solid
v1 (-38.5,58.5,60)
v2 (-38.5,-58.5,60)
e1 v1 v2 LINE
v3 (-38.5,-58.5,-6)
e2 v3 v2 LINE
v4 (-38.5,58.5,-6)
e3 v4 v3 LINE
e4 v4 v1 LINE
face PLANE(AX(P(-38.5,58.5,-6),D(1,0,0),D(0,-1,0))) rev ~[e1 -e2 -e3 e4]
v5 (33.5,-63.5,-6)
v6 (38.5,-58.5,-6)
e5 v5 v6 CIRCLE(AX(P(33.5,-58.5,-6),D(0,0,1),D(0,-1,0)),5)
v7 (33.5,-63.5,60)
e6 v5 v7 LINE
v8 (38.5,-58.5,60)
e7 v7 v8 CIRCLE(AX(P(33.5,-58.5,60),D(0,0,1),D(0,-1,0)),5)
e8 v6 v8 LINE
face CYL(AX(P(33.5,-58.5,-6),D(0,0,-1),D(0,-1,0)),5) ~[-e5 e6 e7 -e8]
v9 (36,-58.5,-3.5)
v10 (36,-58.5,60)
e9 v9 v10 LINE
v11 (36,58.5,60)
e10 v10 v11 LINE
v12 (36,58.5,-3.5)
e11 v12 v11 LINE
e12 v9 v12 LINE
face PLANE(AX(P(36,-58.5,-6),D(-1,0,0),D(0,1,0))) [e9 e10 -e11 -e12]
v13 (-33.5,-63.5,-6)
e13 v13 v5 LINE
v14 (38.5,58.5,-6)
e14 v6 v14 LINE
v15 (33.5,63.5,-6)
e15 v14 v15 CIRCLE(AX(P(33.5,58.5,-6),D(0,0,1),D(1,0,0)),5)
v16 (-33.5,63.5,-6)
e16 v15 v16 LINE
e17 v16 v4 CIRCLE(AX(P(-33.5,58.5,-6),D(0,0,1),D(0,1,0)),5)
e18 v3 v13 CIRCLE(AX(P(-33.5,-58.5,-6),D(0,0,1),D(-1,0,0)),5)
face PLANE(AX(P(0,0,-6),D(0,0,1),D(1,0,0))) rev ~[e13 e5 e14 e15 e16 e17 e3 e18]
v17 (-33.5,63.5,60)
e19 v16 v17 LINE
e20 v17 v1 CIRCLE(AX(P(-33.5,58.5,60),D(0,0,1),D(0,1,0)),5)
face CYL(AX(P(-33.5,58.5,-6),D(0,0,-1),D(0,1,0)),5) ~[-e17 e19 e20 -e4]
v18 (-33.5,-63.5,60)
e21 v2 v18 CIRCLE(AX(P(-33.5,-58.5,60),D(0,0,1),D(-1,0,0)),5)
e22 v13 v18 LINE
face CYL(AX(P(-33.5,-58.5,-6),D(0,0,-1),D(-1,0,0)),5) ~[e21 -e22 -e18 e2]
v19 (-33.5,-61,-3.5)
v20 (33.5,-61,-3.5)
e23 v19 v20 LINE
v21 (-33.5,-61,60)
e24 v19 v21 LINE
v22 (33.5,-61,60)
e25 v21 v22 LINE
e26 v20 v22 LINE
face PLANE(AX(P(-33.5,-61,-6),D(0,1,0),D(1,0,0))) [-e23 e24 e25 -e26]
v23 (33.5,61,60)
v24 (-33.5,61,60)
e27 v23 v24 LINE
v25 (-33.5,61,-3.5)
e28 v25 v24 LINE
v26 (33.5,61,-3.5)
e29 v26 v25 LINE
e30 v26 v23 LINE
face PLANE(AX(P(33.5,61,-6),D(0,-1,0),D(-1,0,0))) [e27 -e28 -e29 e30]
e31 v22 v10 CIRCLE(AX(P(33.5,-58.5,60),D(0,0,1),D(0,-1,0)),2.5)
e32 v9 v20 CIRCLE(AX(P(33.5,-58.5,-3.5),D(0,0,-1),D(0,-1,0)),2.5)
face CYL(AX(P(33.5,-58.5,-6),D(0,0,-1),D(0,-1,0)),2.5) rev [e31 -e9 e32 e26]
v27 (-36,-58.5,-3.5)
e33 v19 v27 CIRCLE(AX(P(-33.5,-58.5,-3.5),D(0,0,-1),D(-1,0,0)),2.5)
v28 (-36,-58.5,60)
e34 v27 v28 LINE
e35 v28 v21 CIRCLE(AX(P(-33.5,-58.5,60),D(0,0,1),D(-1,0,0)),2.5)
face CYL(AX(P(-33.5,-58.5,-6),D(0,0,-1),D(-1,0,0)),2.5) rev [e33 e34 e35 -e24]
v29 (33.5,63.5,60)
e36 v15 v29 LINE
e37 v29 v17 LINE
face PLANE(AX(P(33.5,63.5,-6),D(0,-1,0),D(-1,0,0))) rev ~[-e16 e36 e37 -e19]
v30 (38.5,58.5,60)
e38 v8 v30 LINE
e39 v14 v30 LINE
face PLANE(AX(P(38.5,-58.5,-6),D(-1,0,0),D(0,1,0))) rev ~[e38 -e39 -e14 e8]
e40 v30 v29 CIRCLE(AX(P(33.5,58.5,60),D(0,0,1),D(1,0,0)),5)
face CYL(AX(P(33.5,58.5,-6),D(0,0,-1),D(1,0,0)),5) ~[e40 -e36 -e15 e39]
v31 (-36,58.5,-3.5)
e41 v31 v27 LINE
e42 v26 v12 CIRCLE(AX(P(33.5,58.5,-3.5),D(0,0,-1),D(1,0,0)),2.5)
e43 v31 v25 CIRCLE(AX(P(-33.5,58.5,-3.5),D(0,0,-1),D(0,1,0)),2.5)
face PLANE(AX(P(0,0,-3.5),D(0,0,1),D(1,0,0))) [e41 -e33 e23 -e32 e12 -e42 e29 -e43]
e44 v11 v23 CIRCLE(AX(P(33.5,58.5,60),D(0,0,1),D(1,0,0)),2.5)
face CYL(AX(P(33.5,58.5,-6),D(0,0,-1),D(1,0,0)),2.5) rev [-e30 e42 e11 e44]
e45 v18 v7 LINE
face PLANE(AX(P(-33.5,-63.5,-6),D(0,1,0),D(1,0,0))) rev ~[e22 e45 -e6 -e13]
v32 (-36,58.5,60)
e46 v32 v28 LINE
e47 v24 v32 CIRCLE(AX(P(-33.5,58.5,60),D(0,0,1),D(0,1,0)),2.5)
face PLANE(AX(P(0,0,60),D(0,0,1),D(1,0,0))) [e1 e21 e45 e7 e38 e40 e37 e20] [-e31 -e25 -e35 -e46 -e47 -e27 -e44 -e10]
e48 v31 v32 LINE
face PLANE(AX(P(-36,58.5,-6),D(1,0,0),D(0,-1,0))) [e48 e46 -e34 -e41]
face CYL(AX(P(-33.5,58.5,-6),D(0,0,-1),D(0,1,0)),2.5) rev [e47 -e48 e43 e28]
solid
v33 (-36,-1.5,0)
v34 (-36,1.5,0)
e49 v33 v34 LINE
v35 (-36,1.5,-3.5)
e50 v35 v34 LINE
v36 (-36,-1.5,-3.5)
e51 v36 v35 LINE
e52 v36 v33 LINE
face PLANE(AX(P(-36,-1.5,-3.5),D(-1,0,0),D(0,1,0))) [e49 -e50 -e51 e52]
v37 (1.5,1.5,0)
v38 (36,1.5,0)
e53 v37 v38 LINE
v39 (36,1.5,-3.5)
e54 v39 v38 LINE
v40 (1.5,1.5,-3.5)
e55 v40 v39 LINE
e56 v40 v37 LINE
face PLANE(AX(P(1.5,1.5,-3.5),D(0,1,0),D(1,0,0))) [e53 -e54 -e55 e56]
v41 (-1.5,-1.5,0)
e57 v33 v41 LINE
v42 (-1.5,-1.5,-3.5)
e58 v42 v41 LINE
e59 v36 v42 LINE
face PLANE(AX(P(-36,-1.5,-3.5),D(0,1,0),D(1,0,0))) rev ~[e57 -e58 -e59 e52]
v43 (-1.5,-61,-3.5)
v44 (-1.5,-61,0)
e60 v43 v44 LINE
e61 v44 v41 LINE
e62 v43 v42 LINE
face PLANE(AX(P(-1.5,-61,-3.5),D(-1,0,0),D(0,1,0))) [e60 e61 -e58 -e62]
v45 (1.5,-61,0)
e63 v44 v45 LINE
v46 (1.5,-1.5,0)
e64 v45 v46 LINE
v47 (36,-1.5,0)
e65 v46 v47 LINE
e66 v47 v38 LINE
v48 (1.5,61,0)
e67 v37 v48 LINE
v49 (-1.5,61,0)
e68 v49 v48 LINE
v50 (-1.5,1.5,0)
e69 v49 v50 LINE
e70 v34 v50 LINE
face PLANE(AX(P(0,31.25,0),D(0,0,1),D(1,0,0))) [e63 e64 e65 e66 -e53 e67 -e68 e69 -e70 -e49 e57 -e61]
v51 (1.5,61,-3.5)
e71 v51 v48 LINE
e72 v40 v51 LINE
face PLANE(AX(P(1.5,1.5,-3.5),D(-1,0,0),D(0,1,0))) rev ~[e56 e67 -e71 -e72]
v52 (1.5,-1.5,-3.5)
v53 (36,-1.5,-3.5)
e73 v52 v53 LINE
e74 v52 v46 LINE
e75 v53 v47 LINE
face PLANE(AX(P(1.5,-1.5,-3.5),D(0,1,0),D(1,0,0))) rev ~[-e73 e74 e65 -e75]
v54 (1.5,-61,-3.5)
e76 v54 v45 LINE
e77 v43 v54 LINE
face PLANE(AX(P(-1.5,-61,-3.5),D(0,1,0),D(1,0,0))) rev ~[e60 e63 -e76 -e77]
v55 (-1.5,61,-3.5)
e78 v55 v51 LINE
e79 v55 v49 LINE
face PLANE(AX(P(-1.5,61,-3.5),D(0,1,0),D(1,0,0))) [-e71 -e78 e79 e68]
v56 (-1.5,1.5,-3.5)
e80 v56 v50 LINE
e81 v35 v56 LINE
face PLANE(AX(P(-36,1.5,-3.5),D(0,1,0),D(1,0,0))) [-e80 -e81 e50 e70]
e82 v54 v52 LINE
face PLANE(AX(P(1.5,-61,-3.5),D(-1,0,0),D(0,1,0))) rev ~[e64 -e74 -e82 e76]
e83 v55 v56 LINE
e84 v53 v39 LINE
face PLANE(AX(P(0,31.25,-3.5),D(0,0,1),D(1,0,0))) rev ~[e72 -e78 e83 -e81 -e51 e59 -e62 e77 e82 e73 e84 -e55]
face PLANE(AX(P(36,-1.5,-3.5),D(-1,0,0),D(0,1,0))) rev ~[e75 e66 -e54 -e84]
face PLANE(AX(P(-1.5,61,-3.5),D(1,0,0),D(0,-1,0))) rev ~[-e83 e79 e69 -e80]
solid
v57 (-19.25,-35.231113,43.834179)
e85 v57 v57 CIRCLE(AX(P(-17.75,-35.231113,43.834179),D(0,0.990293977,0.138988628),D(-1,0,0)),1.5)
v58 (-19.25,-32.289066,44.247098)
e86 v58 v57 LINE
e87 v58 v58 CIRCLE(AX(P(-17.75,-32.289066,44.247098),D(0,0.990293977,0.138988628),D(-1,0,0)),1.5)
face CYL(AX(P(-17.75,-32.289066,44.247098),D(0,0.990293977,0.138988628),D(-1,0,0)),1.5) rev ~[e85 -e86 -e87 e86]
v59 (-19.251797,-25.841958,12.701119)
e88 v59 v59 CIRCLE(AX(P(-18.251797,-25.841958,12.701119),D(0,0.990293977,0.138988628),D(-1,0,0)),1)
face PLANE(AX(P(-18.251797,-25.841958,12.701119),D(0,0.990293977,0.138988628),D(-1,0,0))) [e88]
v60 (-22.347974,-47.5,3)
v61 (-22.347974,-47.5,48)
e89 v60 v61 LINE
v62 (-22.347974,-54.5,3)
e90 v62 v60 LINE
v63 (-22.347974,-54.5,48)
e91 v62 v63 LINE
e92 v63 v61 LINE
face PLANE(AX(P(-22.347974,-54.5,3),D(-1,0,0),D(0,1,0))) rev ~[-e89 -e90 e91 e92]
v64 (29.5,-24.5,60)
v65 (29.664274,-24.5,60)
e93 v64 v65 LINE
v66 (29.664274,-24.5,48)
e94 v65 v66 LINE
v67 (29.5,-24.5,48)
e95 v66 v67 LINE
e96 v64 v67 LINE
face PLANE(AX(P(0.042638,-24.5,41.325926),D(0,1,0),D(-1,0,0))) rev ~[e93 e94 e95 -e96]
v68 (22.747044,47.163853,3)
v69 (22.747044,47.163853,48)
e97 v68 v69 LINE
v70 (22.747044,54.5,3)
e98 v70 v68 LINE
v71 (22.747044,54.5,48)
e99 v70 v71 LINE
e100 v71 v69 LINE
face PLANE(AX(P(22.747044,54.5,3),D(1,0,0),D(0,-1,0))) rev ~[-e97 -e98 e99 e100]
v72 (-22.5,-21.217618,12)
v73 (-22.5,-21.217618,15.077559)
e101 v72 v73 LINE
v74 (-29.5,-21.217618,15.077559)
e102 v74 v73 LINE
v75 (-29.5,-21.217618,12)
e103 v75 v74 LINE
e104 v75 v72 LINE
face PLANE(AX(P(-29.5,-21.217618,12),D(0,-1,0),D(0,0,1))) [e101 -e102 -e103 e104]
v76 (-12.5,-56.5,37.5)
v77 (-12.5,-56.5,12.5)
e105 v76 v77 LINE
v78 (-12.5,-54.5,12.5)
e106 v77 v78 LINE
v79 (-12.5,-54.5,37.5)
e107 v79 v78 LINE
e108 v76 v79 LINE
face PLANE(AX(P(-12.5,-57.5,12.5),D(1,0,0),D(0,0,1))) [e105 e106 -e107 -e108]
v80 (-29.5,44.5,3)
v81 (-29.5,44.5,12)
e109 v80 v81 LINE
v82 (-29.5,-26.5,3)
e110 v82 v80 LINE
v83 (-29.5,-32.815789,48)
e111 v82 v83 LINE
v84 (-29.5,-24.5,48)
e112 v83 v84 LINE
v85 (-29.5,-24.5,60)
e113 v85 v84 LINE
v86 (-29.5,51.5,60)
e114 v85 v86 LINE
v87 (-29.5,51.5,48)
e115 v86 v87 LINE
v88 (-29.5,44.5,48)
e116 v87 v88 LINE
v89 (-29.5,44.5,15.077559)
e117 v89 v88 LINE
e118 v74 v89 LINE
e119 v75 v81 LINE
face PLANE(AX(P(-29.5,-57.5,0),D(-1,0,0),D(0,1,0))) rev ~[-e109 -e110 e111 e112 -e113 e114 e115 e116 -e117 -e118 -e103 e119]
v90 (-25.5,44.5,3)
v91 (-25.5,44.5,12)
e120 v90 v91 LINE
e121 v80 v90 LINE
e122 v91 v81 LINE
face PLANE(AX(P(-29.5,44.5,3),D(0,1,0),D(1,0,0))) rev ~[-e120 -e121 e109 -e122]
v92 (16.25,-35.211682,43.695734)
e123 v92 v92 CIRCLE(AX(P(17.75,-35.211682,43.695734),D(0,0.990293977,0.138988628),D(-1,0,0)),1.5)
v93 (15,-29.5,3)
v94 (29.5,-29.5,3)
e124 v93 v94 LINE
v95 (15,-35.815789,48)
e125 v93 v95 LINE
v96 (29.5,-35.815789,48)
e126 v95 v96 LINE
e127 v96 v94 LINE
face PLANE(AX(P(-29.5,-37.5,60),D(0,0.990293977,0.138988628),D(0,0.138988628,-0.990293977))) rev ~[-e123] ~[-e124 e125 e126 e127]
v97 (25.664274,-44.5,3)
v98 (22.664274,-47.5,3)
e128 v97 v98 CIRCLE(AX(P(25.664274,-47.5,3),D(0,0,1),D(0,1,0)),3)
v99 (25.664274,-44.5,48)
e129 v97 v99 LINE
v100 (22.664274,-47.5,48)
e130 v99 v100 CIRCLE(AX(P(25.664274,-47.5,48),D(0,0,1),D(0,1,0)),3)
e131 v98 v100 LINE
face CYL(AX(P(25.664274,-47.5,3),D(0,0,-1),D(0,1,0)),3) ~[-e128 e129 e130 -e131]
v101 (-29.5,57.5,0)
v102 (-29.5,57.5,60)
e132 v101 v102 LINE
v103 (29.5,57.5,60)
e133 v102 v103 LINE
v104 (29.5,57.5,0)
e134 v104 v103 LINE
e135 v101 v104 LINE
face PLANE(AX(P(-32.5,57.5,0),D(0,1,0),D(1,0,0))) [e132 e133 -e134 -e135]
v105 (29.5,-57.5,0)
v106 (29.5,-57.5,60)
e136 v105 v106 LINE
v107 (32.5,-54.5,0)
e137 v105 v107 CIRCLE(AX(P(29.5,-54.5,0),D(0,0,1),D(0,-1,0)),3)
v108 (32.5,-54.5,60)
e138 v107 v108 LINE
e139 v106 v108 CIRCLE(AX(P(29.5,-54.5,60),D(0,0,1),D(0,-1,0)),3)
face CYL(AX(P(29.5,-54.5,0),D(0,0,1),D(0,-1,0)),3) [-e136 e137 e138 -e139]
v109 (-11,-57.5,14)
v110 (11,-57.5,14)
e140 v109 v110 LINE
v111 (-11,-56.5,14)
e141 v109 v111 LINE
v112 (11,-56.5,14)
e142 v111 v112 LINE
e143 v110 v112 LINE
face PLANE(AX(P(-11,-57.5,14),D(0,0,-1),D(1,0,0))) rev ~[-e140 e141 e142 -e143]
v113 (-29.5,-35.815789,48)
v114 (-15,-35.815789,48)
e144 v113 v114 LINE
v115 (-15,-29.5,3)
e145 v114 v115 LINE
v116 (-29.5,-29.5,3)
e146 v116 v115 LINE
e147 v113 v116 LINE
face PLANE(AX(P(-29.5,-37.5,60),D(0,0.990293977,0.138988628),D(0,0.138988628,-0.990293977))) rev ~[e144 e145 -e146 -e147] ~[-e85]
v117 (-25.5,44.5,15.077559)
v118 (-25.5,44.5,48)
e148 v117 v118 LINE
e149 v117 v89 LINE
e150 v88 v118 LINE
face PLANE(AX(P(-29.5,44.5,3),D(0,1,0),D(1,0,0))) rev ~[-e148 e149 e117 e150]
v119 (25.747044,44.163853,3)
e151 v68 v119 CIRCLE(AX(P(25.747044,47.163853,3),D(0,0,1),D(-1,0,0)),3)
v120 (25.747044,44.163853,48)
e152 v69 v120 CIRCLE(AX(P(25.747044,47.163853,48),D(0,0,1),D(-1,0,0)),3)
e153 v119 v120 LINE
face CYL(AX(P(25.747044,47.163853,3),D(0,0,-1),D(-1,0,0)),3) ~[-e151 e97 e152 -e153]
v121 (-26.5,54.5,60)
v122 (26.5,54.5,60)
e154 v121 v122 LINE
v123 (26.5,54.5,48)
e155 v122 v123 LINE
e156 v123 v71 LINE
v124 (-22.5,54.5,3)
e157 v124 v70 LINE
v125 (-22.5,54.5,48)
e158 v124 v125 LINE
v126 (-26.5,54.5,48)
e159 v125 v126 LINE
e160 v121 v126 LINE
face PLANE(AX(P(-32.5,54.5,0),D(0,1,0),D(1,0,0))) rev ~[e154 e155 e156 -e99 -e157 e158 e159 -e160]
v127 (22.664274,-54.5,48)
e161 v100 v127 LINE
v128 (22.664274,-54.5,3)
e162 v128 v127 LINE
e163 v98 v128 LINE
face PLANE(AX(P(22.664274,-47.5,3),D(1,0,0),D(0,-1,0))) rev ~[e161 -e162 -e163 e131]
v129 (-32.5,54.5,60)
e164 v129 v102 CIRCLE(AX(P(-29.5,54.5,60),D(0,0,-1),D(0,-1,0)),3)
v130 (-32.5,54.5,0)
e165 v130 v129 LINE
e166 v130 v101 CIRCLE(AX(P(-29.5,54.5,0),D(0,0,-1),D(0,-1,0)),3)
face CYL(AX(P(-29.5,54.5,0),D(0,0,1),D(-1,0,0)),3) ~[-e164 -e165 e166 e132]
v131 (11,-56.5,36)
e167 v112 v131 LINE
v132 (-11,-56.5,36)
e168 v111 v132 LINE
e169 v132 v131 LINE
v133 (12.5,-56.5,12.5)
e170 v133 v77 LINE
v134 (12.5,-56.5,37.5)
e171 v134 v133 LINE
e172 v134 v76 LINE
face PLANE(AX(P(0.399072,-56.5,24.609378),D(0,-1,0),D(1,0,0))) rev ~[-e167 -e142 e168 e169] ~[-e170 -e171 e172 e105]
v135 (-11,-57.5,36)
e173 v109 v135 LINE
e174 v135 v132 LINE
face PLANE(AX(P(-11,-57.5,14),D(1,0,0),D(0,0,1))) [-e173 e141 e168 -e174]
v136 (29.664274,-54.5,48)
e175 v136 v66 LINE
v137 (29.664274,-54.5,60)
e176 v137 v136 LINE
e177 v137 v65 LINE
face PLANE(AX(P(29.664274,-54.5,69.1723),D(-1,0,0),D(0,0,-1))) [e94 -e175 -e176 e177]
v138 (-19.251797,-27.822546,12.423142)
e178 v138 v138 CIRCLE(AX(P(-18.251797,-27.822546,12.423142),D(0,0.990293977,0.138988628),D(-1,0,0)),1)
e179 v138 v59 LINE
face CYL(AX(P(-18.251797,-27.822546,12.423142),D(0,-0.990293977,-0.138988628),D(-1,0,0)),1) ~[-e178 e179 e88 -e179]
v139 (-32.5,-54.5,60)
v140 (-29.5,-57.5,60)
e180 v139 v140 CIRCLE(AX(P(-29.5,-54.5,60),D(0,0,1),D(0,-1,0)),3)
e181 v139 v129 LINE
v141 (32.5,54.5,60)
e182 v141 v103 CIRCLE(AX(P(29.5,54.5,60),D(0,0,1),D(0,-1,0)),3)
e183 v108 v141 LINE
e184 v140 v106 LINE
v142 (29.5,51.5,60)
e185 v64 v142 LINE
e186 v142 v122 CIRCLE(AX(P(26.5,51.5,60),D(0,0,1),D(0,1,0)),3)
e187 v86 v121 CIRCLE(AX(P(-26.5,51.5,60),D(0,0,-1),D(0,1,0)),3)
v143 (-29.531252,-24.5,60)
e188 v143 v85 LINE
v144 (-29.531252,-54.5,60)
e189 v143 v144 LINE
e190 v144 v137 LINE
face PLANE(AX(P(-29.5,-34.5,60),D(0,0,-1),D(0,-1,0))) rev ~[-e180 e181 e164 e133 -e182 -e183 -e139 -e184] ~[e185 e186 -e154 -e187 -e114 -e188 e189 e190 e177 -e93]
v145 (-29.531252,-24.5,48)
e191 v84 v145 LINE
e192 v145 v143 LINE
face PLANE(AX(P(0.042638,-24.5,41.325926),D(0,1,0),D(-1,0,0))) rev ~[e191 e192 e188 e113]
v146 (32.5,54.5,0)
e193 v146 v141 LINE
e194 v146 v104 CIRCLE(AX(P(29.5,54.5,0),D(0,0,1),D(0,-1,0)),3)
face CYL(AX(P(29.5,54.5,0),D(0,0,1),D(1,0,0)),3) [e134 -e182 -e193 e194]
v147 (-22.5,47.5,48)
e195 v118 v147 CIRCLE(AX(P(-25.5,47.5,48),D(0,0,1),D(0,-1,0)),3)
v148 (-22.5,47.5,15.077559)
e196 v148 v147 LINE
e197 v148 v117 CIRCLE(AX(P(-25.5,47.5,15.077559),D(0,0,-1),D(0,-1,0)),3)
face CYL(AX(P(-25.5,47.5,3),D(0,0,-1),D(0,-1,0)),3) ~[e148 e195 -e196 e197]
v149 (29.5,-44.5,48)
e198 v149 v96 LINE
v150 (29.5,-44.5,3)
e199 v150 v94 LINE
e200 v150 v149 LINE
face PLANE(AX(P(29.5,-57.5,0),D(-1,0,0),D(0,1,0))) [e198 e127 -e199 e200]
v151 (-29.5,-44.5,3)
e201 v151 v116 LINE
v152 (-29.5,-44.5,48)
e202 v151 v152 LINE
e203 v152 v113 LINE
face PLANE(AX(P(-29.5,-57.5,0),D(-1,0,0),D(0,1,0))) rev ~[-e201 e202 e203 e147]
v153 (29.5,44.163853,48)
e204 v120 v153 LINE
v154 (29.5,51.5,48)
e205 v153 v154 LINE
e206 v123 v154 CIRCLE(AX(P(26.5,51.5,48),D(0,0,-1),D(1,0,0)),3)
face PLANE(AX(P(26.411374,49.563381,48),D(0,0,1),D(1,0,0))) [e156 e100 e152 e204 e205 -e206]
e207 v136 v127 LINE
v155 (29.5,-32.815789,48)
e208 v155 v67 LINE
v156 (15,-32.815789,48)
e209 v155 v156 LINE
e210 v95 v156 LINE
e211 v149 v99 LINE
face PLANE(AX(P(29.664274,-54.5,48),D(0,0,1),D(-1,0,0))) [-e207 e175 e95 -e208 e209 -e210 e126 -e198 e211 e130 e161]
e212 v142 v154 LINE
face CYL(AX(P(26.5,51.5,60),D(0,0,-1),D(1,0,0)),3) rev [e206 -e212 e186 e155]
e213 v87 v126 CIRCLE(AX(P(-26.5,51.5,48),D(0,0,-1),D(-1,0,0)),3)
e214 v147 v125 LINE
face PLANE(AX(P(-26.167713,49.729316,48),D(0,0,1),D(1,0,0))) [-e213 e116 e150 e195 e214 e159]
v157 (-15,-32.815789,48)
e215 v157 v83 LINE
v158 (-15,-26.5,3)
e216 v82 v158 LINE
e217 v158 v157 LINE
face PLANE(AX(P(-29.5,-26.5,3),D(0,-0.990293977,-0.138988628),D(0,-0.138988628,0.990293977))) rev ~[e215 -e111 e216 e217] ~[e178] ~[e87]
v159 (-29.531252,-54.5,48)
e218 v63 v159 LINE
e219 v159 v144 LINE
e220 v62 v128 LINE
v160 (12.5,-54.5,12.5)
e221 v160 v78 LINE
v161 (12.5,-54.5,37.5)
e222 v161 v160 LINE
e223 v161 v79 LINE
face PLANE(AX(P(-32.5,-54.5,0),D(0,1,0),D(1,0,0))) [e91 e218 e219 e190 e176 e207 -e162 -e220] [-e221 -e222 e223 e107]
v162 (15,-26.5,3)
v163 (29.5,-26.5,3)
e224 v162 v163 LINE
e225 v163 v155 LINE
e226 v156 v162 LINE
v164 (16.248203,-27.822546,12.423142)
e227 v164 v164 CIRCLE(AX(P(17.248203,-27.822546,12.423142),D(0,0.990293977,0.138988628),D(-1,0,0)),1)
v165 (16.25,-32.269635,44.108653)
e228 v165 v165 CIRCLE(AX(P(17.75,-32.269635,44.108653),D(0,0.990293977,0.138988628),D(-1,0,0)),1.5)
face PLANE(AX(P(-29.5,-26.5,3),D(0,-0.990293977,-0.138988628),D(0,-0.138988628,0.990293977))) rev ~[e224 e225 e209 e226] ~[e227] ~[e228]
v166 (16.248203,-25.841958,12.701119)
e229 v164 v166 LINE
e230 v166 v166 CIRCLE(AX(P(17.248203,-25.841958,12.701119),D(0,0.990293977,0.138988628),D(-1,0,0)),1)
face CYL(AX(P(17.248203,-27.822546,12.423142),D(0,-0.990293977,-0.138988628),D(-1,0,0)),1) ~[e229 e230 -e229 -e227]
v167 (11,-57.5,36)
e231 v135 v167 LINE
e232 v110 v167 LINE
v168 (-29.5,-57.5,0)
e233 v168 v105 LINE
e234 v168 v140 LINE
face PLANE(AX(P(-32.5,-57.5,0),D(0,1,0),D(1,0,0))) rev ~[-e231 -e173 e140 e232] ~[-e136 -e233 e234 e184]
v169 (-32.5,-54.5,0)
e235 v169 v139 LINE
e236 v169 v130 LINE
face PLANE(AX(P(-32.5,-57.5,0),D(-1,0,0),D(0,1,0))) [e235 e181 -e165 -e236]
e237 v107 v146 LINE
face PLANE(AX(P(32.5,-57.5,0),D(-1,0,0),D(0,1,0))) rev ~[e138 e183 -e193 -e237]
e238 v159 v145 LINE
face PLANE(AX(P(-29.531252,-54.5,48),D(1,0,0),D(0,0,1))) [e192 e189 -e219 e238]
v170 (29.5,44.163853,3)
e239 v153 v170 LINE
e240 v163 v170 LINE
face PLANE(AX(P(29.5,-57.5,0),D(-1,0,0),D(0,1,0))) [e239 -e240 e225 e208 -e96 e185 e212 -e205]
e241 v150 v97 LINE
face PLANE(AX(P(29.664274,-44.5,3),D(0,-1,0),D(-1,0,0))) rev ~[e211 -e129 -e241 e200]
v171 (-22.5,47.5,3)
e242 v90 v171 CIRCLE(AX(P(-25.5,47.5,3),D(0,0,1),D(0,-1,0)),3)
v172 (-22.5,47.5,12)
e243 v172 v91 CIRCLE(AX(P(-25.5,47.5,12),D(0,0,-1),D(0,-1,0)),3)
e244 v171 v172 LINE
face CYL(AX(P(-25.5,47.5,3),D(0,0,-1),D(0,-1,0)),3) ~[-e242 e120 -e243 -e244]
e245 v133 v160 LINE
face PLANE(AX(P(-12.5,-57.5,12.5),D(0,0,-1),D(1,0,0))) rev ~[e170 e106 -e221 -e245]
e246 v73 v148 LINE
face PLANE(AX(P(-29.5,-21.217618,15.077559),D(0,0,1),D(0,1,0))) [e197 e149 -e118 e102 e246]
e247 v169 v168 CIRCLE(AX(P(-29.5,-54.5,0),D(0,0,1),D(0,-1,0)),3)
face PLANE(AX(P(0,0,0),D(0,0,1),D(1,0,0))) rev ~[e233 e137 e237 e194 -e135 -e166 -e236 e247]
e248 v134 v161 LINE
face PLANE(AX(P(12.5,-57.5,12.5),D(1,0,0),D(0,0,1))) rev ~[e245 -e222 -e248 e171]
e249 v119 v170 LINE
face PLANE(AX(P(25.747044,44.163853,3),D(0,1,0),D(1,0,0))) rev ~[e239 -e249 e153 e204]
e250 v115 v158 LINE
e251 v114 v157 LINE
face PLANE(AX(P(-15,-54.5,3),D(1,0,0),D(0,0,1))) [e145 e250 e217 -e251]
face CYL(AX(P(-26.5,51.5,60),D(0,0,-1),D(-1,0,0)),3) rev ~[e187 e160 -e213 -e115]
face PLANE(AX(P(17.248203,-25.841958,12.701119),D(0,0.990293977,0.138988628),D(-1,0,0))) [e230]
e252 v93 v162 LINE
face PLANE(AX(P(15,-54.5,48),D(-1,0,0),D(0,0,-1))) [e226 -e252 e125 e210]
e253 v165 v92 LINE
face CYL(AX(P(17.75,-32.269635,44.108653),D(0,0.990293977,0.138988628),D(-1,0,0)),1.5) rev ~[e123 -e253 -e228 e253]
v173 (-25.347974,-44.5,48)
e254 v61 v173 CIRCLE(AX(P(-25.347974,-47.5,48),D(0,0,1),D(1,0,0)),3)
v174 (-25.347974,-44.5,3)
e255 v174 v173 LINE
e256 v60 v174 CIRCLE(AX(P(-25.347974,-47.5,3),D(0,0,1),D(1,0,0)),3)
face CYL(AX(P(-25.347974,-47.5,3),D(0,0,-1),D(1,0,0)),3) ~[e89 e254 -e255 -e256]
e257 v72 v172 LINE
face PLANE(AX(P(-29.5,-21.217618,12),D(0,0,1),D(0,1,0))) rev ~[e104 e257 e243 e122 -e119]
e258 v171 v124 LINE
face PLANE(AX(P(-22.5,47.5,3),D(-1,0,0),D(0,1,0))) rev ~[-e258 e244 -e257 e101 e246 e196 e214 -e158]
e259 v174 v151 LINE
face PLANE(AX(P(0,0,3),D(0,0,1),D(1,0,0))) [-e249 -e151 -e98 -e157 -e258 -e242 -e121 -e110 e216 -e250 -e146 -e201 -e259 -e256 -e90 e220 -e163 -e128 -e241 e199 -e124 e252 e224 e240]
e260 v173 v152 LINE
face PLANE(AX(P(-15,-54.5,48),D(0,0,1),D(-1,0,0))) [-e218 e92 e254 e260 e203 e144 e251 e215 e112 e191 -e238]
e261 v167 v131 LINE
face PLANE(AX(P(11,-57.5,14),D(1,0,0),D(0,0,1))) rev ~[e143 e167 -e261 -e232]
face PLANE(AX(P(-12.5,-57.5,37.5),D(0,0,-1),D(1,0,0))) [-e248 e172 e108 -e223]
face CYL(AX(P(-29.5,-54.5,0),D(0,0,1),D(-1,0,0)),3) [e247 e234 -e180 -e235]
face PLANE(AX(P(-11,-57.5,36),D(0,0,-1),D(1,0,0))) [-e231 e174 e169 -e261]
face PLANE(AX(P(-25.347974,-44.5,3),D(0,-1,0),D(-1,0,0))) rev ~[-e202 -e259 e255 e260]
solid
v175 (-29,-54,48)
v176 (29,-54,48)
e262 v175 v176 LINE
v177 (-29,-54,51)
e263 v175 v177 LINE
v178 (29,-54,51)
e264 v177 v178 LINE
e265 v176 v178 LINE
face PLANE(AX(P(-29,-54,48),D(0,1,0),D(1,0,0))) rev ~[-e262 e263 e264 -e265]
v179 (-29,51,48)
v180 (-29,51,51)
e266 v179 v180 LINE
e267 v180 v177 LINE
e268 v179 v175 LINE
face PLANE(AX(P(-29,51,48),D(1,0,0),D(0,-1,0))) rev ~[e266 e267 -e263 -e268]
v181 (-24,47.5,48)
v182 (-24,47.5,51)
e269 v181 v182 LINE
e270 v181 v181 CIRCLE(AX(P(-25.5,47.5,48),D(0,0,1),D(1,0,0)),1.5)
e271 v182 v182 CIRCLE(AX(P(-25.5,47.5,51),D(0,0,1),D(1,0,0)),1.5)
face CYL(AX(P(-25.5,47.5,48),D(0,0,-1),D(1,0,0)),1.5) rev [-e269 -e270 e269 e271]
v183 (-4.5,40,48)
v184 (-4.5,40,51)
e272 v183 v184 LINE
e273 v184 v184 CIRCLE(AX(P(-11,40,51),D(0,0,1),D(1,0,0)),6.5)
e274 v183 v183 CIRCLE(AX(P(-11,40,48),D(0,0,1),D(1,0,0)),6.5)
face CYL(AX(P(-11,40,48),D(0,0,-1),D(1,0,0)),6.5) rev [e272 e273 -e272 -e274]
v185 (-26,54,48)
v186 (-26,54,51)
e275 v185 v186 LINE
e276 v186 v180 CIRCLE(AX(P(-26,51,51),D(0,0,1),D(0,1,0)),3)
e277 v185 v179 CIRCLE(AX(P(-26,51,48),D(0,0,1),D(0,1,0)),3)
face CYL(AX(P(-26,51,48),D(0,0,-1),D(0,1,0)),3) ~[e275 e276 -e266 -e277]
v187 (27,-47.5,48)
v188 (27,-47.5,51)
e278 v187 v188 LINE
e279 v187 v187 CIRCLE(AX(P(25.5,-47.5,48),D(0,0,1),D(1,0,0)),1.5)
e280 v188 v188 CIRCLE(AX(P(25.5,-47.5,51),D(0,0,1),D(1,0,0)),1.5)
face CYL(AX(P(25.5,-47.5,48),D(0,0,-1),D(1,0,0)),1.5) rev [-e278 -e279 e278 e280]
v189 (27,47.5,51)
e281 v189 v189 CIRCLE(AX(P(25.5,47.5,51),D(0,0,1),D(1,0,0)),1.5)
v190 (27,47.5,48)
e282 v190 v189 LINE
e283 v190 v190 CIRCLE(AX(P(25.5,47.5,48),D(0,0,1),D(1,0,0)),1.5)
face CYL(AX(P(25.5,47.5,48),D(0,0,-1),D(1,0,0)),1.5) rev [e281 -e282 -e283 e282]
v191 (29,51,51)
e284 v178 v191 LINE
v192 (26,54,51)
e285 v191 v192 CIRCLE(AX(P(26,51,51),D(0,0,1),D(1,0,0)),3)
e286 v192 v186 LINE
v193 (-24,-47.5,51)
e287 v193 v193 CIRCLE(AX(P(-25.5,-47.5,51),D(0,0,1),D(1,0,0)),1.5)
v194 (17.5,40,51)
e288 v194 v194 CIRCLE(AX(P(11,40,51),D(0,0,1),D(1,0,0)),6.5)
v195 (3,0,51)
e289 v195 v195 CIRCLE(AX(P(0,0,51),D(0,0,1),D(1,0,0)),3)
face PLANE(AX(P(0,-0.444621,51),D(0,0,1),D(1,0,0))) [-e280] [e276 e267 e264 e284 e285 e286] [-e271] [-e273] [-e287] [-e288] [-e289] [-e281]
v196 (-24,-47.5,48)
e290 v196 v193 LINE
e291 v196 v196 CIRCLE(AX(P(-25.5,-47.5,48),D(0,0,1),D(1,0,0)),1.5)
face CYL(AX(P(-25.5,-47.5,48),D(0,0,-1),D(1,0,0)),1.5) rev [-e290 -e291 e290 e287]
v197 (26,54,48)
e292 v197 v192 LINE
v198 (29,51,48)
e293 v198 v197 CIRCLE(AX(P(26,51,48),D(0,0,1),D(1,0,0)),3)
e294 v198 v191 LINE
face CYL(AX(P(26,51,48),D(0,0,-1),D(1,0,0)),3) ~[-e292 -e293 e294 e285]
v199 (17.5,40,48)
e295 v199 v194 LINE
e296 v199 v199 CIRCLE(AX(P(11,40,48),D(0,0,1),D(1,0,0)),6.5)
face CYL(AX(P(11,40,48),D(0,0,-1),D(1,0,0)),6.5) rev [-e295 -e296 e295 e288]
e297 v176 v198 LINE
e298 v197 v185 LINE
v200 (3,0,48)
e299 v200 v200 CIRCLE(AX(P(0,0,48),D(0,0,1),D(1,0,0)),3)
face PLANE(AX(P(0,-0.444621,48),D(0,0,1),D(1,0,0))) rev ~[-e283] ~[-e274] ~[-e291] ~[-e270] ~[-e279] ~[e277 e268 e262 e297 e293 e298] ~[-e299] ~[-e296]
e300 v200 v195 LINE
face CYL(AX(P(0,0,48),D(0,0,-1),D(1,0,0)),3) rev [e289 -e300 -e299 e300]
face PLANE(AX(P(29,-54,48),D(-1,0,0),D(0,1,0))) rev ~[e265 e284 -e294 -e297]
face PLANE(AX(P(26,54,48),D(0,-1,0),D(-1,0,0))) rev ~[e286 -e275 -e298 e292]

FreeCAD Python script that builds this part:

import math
import FreeCAD as App
import Part
import Sketcher
Q = App.Units.Quantity


def edges_at(feature, points):
    """Names of the edges that pass closest to the given points."""
    edges = feature.Shape.Edges
    near = lambda p: min(range(len(edges)), key=lambda i: edges[i].distToShape(Part.Vertex(*p))[0])
    return sorted({f"Edge{near(p) + 1}" for p in points})


def faces_at(feature, points):
    """Names of the faces that lie closest to the given points."""
    faces = feature.Shape.Faces
    near = lambda p: min(range(len(faces)), key=lambda i: faces[i].distToShape(Part.Vertex(*p))[0])
    return sorted({f"Face{near(p) + 1}" for p in points})


def add_polygon(sketch, points):
    """Adds a closed chain of lines whose ends are joined by coincident constraints."""
    first, n = sketch.GeometryCount, len(points)
    for a, b in zip(points, points[1:] + points[:1]):
        sketch.addGeometry(Part.LineSegment(App.Vector(*a, 0), App.Vector(*b, 0)), False)
    for i in range(n):
        sketch.addConstraint(Sketcher.Constraint("Coincident", first + i, 2, first + (i + 1) % n, 1))

doc = App.newDocument("Part")
body = doc.addObject("PartDesign::Body", "Body")

sketch1 = body.newObject("Sketcher::SketchObject", "Sketch")
sketch1.AttachmentSupport = (doc.getObject("XY_Plane"), [""])
sketch1.MapMode = "FlatFace"
sketch1.AttachmentOffset = App.Placement(App.Vector(0, 0, -6), App.Rotation())
sketch1.addGeometry([
    Part.LineSegment(App.Vector(34, 64, 0), App.Vector(-34, 64, 0)),
    Part.ArcOfCircle(Part.Circle(App.Vector(-34, 58, 0), App.Vector(0, 0, 1), 5), math.radians(90), math.radians(180)),
    Part.LineSegment(App.Vector(-38, 58, 0), App.Vector(-38, -58, 0)),
    Part.ArcOfCircle(Part.Circle(App.Vector(-34, -58, 0), App.Vector(0, 0, 1), 5), math.radians(180), math.radians(270)),
    Part.LineSegment(App.Vector(-34, -64, 0), App.Vector(34, -64, 0)),
    Part.ArcOfCircle(Part.Circle(App.Vector(34, -58, 0), App.Vector(0, 0, 1), 5), math.radians(-90), math.radians(0)),
    Part.LineSegment(App.Vector(38, -58, 0), App.Vector(38, 58, 0)),
    Part.ArcOfCircle(Part.Circle(App.Vector(34, 58, 0), App.Vector(0, 0, 1), 5), math.radians(0), math.radians(90)),
], False)
sketch1.addConstraint([
    Sketcher.Constraint("Tangent", 0, 2, 1, 1),
    Sketcher.Constraint("Tangent", 1, 2, 2, 1),
    Sketcher.Constraint("Tangent", 2, 2, 3, 1),
    Sketcher.Constraint("Tangent", 3, 2, 4, 1),
    Sketcher.Constraint("Tangent", 4, 2, 5, 1),
    Sketcher.Constraint("Tangent", 5, 2, 6, 1),
    Sketcher.Constraint("Tangent", 6, 2, 7, 1),
    Sketcher.Constraint("Tangent", 7, 2, 0, 1),
    Sketcher.Constraint("Horizontal", 0),
    Sketcher.Constraint("Vertical", 2),
    Sketcher.Constraint("Horizontal", 4),
    Sketcher.Constraint("Vertical", 6),
    Sketcher.Constraint("Equal", 1, 3),
    Sketcher.Constraint("Equal", 3, 5),
    Sketcher.Constraint("Equal", 5, 7),
    Sketcher.Constraint("Symmetric", 1, 3, 5, 3, -1, 1),
    Sketcher.Constraint("Radius", 1, Q("5 mm")),
    Sketcher.Constraint("DistanceX", 0, 2, 0, 1, Q("67 mm")),
    Sketcher.Constraint("DistanceY", 2, 2, 2, 1, Q("117 mm")),
])
pad1 = body.newObject("PartDesign::Pad", "Pad")
pad1.Profile = sketch1
pad1.Length = 66
doc.recompute()

thickness = body.newObject("PartDesign::Thickness", "Thickness")
thickness.Base = (pad1, faces_at(pad1, [(0, 0, 60)]))
thickness.Value = 2.5
thickness.Reversed = True
thickness.Join = "Arc"
body2 = doc.addObject("PartDesign::Body", "Body001")

sketch2 = body2.newObject("Sketcher::SketchObject", "Sketch001")
sketch2.AttachmentSupport = (doc.getObject("XY_Plane001"), [""])
sketch2.MapMode = "FlatFace"
add_polygon(sketch2, [(-32, 58), (-32, -58), (32, -58), (32, 58)])
sketch2.addConstraint([
    Sketcher.Constraint("Vertical", 0),
    Sketcher.Constraint("Horizontal", 1),
    Sketcher.Constraint("Vertical", 2),
    Sketcher.Constraint("Horizontal", 3),
    Sketcher.Constraint("Symmetric", 0, 2, 2, 2, -1, 1),
    Sketcher.Constraint("DistanceX", 1, 1, 1, 2, Q("65 mm")),
    Sketcher.Constraint("DistanceY", 0, 2, 0, 1, Q("115 mm")),
])
pad2 = body2.newObject("PartDesign::Pad", "Pad001")
pad2.Profile = sketch2
pad2.Length = 60
doc.recompute()

thickness2 = body2.newObject("PartDesign::Thickness", "Thickness001")
thickness2.Base = (pad2, faces_at(pad2, [(0, 0, 60)]))
thickness2.Value = 3
thickness2.Reversed = True
thickness2.Join = "Arc"
doc.recompute()

fillet = body2.newObject("PartDesign::Fillet", "Fillet")
fillet.Base = (thickness2, edges_at(thickness2, [
    (-29.5, 54.5, 31.5),
    (32.5, -57.5, 30),
    (-32.5, -57.5, 30),
    (32.5, 57.5, 30),
    (29.5, -54.5, 31.5),
    (-32.5, 57.5, 30),
    (29.5, 54.5, 31.5),
    (-29.5, -54.5, 31.5),
]))
fillet.Radius = 3

sketch3 = body2.newObject("Sketcher::SketchObject", "Sketch002")
sketch3.AttachmentSupport = (doc.getObject("YZ_Plane001"), [""])
sketch3.MapMode = "FlatFace"
sketch3.AttachmentOffset = App.Placement(App.Vector(0, 0, -29.5), App.Rotation())
add_polygon(sketch3, [(-37.5, 60), (-29.5, 3), (-26.5, 3), (-34.5, 60)])
sketch3.addConstraint([
    Sketcher.Constraint("Horizontal", 1),
    Sketcher.Constraint("Horizontal", 3),
    Sketcher.Constraint("Parallel", 0, 2),
    Sketcher.Constraint("DistanceX", 1, 1, 1, 2, Q("3 mm")),
    Sketcher.Constraint("DistanceY", -1, 1, 0, 2, Q("3 mm")),
    Sketcher.Constraint("DistanceY", -1, 1, 2, 2, Q("60 mm")),
    Sketcher.Constraint("DistanceX", 2, 2, 0, 2, Q("5 mm")),
    Sketcher.Constraint("DistanceX", 0, 2, -1, 1, Q("29.5 mm")),
])
pad3 = body2.newObject("PartDesign::Pad", "Pad002")
pad3.Profile = sketch3
pad3.Length = 60

sketch4 = body2.newObject("Sketcher::SketchObject", "Sketch003")
sketch4.AttachmentSupport = (doc.getObject("XZ_Plane001"), [""])
sketch4.MapMode = "FlatFace"
sketch4.AttachmentOffset = App.Placement(App.Vector(0, 0, 54.5), App.Rotation())
add_polygon(sketch4, [(15, 3), (-15, 3), (-15, 48), (-30, 48), (-30, 69), (30, 69), (30, 48), (15, 48)])
sketch4.addConstraint([
    Sketcher.Constraint("Horizontal", 0),
    Sketcher.Constraint("Vertical", 1),
    Sketcher.Constraint("Horizontal", 2),
    Sketcher.Constraint("Vertical", 3),
    Sketcher.Constraint("Horizontal", 4),
    Sketcher.Constraint("Vertical", 5),
    Sketcher.Constraint("Horizontal", 6),
    Sketcher.Constraint("Vertical", 7),
    Sketcher.Constraint("Symmetric", 1, 2, 6, 2, -2),
    Sketcher.Constraint("DistanceX", 0, 2, 0, 1, Q("30 mm")),
    Sketcher.Constraint("DistanceY", 1, 1, 1, 2, Q("45 mm")),
    Sketcher.Constraint("DistanceY", -1, 1, 0, 2, Q("3 mm")),
    Sketcher.Constraint("DistanceY", 3, 1, 3, 2, Q("21.1723 mm")),
    Sketcher.Constraint("DistanceX", 2, 2, 2, 1, Q("14.531252 mm")),
    Sketcher.Constraint("DistanceX", 4, 1, 4, 2, Q("59.195526 mm")),
])
pocket1 = body2.newObject("PartDesign::Pocket", "Pocket")
pocket1.Profile = sketch4
pocket1.Length = 30

sketch5 = body2.newObject("Sketcher::SketchObject", "Sketch004")
sketch5.AttachmentSupport = (doc.getObject("XZ_Plane001"), [""])
sketch5.MapMode = "FlatFace"
sketch5.AttachmentOffset = App.Placement(App.Vector(0, 0, 57.5), App.Rotation())
add_polygon(sketch5, [(-12, 38), (-12, 12), (12, 12), (12, 38)])
sketch5.addConstraint([
    Sketcher.Constraint("Vertical", 0),
    Sketcher.Constraint("Horizontal", 1),
    Sketcher.Constraint("Vertical", 2),
    Sketcher.Constraint("Horizontal", 3),
    Sketcher.Constraint("Equal", 3, 0),
    Sketcher.Constraint("DistanceX", 1, 1, 1, 2, Q("25 mm")),
    Sketcher.Constraint("DistanceX", 0, 2, -1, 1, Q("12.5 mm")),
    Sketcher.Constraint("DistanceY", -1, 1, 0, 2, Q("12.5 mm")),
])
pocket2 = body2.newObject("PartDesign::Pocket", "Pocket001")
pocket2.Profile = sketch5
pocket2.Length = 25

sketch6 = body2.newObject("Sketcher::SketchObject", "Sketch005")
sketch6.AttachmentSupport = (doc.getObject("XZ_Plane001"), [""])
sketch6.MapMode = "FlatFace"
sketch6.AttachmentOffset = App.Placement(App.Vector(0, 0, 57.5), App.Rotation())
add_polygon(sketch6, [(-15, 40), (-15, 9), (16, 9), (16, 40)])
add_polygon(sketch6, [(11, 14), (-11, 14), (-11, 36), (11, 36)])
sketch6.addConstraint([
    Sketcher.Constraint("Vertical", 0),
    Sketcher.Constraint("Horizontal", 1),
    Sketcher.Constraint("Vertical", 2),
    Sketcher.Constraint("Horizontal", 3),
    Sketcher.Constraint("Horizontal", 4),
    Sketcher.Constraint("Vertical", 5),
    Sketcher.Constraint("Horizontal", 6),
    Sketcher.Constraint("Vertical", 7),
    Sketcher.Constraint("Equal", 3, 0),
    Sketcher.Constraint("Equal", 6, 5),
    Sketcher.Constraint("DistanceX", 4, 2, 4, 1, Q("22 mm")),
    Sketcher.Constraint("DistanceX", 4, 2, -1, 1, Q("11 mm")),
    Sketcher.Constraint("DistanceY", -1, 1, 4, 2, Q("14 mm")),
    Sketcher.Constraint("DistanceX", 1, 1, 1, 2, Q("30.329395 mm")),
    Sketcher.Constraint("DistanceY", -1, 1, 0, 2, Q("9.44468 mm")),
    Sketcher.Constraint("DistanceX", -1, 1, 1, 2, Q("15.563769 mm")),
])
pad4 = body2.newObject("PartDesign::Pad", "Pad003")
pad4.Profile = sketch6
pad4.Length = 1
pad4.Reversed = True

sketch7 = body2.newObject("Sketcher::SketchObject", "Sketch006")
sketch7.Placement = App.Placement(App.Vector(0, -25.575158, -3.589496), App.Rotation(App.Vector(-1, 0, 0), App.Vector(0, -0.138988628, 0.990293977), App.Vector(0, 0.990293977, 0.138988628), "ZXY"))
sketch7.addGeometry([
    Part.Circle(App.Vector(-17.8, 48.2, 0), App.Vector(0, 0, 1), 1.5),
    Part.Circle(App.Vector(17.8, 48.3, 0), App.Vector(0, 0, 1), 1.5),
], False)
sketch7.addConstraint([
    Sketcher.Constraint("Equal", 0, 1),
    Sketcher.Constraint("Diameter", 0, Q("3 mm")),
    Sketcher.Constraint("DistanceX", 0, 3, 1, 3, Q("35.5 mm")),
    Sketcher.Constraint("DistanceX", 0, 3, -1, 1, Q("17.75 mm")),
    Sketcher.Constraint("DistanceY", -1, 1, 0, 3, Q("48.165645 mm")),
    Sketcher.Constraint("DistanceY", -1, 1, 1, 3, Q("48.305448 mm")),
])
pocket3 = body2.newObject("PartDesign::Pocket", "Pocket002")
pocket3.Profile = sketch7
pocket3.Length = 5

sketch8 = body2.newObject("Sketcher::SketchObject", "Sketch007")
sketch8.Placement = App.Placement(App.Vector(0, -25.575158, -3.589496), App.Rotation(App.Vector(-1, 0, 0), App.Vector(0, -0.138988628, 0.990293977), App.Vector(0, 0.990293977, 0.138988628), "ZXY"))
sketch8.addGeometry([
    Part.Circle(App.Vector(-17.2, 16.2, 0), App.Vector(0, 0, 1), 1),
    Part.Circle(App.Vector(18.3, 16.2, 0), App.Vector(0, 0, 1), 1),
], False)
sketch8.addConstraint([
    Sketcher.Constraint("Equal", 0, 1),
    Sketcher.Constraint("Horizontal", 0, 3, 1, 3),
    Sketcher.Constraint("Diameter", 0, Q("2 mm")),
    Sketcher.Constraint("DistanceX", 0, 3, 1, 3, Q("35.5 mm")),
    Sketcher.Constraint("DistanceY", -1, 1, 0, 3, Q("16.16958 mm")),
    Sketcher.Constraint("DistanceX", 0, 3, -1, 1, Q("17.248203 mm")),
])
pad5 = body2.newObject("PartDesign::Pad", "Pad004")
pad5.Profile = sketch8
pad5.Length = 2

sketch9 = body2.newObject("Sketcher::SketchObject", "Sketch008")
sketch9.AttachmentSupport = (doc.getObject("YZ_Plane001"), [""])
sketch9.MapMode = "FlatFace"
sketch9.AttachmentOffset = App.Placement(App.Vector(0, 0, -29.5), App.Rotation())
add_polygon(sketch9, [(-21.2, 15.1), (-21.2, 12), (54.7, 12), (54.7, 15.1)])
sketch9.addConstraint([
    Sketcher.Constraint("Vertical", 0),
    Sketcher.Constraint("Horizontal", 1),
    Sketcher.Constraint("Vertical", 2),
    Sketcher.Constraint("Horizontal", 3),
    Sketcher.Constraint("DistanceY", -1, 1, 0, 2, Q("12 mm")),
    Sketcher.Constraint("DistanceY", 0, 2, 0, 1, Q("3.077559 mm")),
    Sketcher.Constraint("DistanceX", 1, 1, 1, 2, Q("75.893786 mm")),
    Sketcher.Constraint("DistanceX", 0, 2, -1, 1, Q("21.217618 mm")),
])
pad6 = body2.newObject("PartDesign::Pad", "Pad005")
pad6.Profile = sketch9
pad6.Length = 7

sketch10 = body2.newObject("Sketcher::SketchObject", "Sketch009")
sketch10.AttachmentSupport = (doc.getObject("XY_Plane001"), [""])
sketch10.MapMode = "FlatFace"
sketch10.AttachmentOffset = App.Placement(App.Vector(0, 0, 3), App.Rotation())
sketch10.addGeometry([
    Part.LineSegment(App.Vector(-22.5, 54.5, 0), App.Vector(-29.5, 54.5, 0)),
    Part.LineSegment(App.Vector(-29.5, 54.5, 0), App.Vector(-29.5, 44.5, 0)),
    Part.LineSegment(App.Vector(-29.5, 44.5, 0), App.Vector(-25.5, 44.5, 0)),
    Part.ArcOfCircle(Part.Circle(App.Vector(-25.5, 47.5, 0), App.Vector(0, 0, 1), 3), math.radians(-90), math.radians(0)),
    Part.LineSegment(App.Vector(-22.5, 47.5, 0), App.Vector(-22.5, 54.5, 0)),
    Part.LineSegment(App.Vector(29.7, 54.5, 0), App.Vector(22.7, 54.5, 0)),
    Part.LineSegment(App.Vector(22.7, 54.5, 0), App.Vector(22.7, 47.2, 0)),
    Part.ArcOfCircle(Part.Circle(App.Vector(25.7, 47.2, 0), App.Vector(0, 0, 1), 3), math.radians(180), math.radians(270)),
    Part.LineSegment(App.Vector(25.7, 44.2, 0), App.Vector(29.7, 44.2, 0)),
    Part.LineSegment(App.Vector(29.7, 44.2, 0), App.Vector(29.7, 54.5, 0)),
    Part.LineSegment(App.Vector(-29.5, -44.5, 0), App.Vector(-29.5, -54.5, 0)),
    Part.LineSegment(App.Vector(-29.5, -54.5, 0), App.Vector(-22.3, -54.5, 0)),
    Part.LineSegment(App.Vector(-22.3, -54.5, 0), App.Vector(-22.3, -47.5, 0)),
    Part.ArcOfCircle(Part.Circle(App.Vector(-25.3, -47.5, 0), App.Vector(0, 0, 1), 3), math.radians(0), math.radians(90)),
    Part.LineSegment(App.Vector(-25.3, -44.5, 0), App.Vector(-29.5, -44.5, 0)),
    Part.LineSegment(App.Vector(22.7, -54.5, 0), App.Vector(29.7, -54.5, 0)),
    Part.LineSegment(App.Vector(29.7, -54.5, 0), App.Vector(29.7, -44.5, 0)),
    Part.LineSegment(App.Vector(29.7, -44.5, 0), App.Vector(25.7, -44.5, 0)),
    Part.ArcOfCircle(Part.Circle(App.Vector(25.7, -47.5, 0), App.Vector(0, 0, 1), 3), math.radians(90), math.radians(180)),
    Part.LineSegment(App.Vector(22.7, -47.5, 0), App.Vector(22.7, -54.5, 0)),
], False)
sketch10.addConstraint([
    Sketcher.Constraint("Coincident", 0, 2, 1, 1),
    Sketcher.Constraint("Coincident", 1, 2, 2, 1),
    Sketcher.Constraint("Tangent", 2, 2, 3, 1),
    Sketcher.Constraint("Tangent", 3, 2, 4, 1),
    Sketcher.Constraint("Coincident", 4, 2, 0, 1),
    Sketcher.Constraint("Coincident", 5, 2, 6, 1),
    Sketcher.Constraint("Tangent", 6, 2, 7, 1),
    Sketcher.Constraint("Tangent", 7, 2, 8, 1),
    Sketcher.Constraint("Coincident", 8, 2, 9, 1),
    Sketcher.Constraint("Coincident", 9, 2, 5, 1),
    Sketcher.Constraint("Coincident", 10, 2, 11, 1),
    Sketcher.Constraint("Coincident", 11, 2, 12, 1),
    Sketcher.Constraint("Tangent", 12, 2, 13, 1),
    Sketcher.Constraint("Tangent", 13, 2, 14, 1),
    Sketcher.Constraint("Coincident", 14, 2, 10, 1),
    Sketcher.Constraint("Coincident", 15, 2, 16, 1),
    Sketcher.Constraint("Coincident", 16, 2, 17, 1),
    Sketcher.Constraint("Tangent", 17, 2, 18, 1),
    Sketcher.Constraint("Tangent", 18, 2, 19, 1),
    Sketcher.Constraint("Coincident", 19, 2, 15, 1),
    Sketcher.Constraint("Horizontal", 0),
    Sketcher.Constraint("Vertical", 1),
    Sketcher.Constraint("Horizontal", 2),
    Sketcher.Constraint("Vertical", 4),
    Sketcher.Constraint("Horizontal", 5),
    Sketcher.Constraint("Vertical", 6),
    Sketcher.Constraint("Horizontal", 8),
    Sketcher.Constraint("Vertical", 9),
    Sketcher.Constraint("Vertical", 10),
    Sketcher.Constraint("Horizontal", 11),
    Sketcher.Constraint("Vertical", 12),
    Sketcher.Constraint("Horizontal", 14),
    Sketcher.Constraint("Horizontal", 15),
    Sketcher.Constraint("Vertical", 16),
    Sketcher.Constraint("Horizontal", 17),
    Sketcher.Constraint("Vertical", 19),
    Sketcher.Constraint("Equal", 3, 7),
    Sketcher.Constraint("Equal", 7, 13),
    Sketcher.Constraint("Equal", 13, 18),
    Sketcher.Constraint("Symmetric", 0, 2, 10, 2, -1),
    Sketcher.Constraint("Horizontal", 13, 3, 18, 3),
    Sketcher.Constraint("Horizontal", 4, 2, 5, 2),
    Sketcher.Constraint("Horizontal", 11, 2, 15, 2),
    Sketcher.Constraint("Equal", 0, 5),
    Sketcher.Constraint("Equal", 5, 15),
    Sketcher.Constraint("Equal", 15, 4),
    Sketcher.Constraint("Equal", 1, 10),
    Sketcher.Constraint("Radius", 3, Q("3 mm")),
    Sketcher.Constraint("DistanceX", 0, 2, 0, 1, Q("7 mm")),
    Sketcher.Constraint("DistanceY", 13, 3, 3, 3, Q("95 mm")),
    Sketcher.Constraint("DistanceX", 3, 3, -1, 1, Q("25.5 mm")),
    Sketcher.Constraint("DistanceX", 11, 1, 11, 2, Q("7.152026 mm")),
    Sketcher.Constraint("DistanceY", 6, 2, 6, 1, Q("7.336147 mm")),
    Sketcher.Constraint("DistanceX", 18, 3, 7, 3, Q("0.082769 mm")),
    Sketcher.Constraint("DistanceX", -1, 1, 7, 3, Q("25.747044 mm")),
])
pad7 = body2.newObject("PartDesign::Pad", "Pad006")
pad7.Profile = sketch10
pad7.Length = 45
body3 = doc.addObject("PartDesign::Body", "Body002")

sketch11 = body3.newObject("Sketcher::SketchObject", "Sketch010")
sketch11.AttachmentSupport = (doc.getObject("XY_Plane002"), [""])
sketch11.MapMode = "FlatFace"
sketch11.AttachmentOffset = App.Placement(App.Vector(0, 0, 48), App.Rotation())
sketch11.addGeometry([
    Part.LineSegment(App.Vector(26, 54, 0), App.Vector(-26, 54, 0)),
    Part.ArcOfCircle(Part.Circle(App.Vector(-26, 51, 0), App.Vector(0, 0, 1), 3), math.radians(90), math.radians(180)),
    Part.LineSegment(App.Vector(-29, 51, 0), App.Vector(-29, -54, 0)),
    Part.LineSegment(App.Vector(-29, -54, 0), App.Vector(29, -54, 0)),
    Part.LineSegment(App.Vector(29, -54, 0), App.Vector(29, 51, 0)),
    Part.ArcOfCircle(Part.Circle(App.Vector(26, 51, 0), App.Vector(0, 0, 1), 3), math.radians(0), math.radians(90)),
    Part.Circle(App.Vector(-25.5, -47.5, 0), App.Vector(0, 0, 1), 1.5),
    Part.Circle(App.Vector(25.5, -47.5, 0), App.Vector(0, 0, 1), 1.5),
    Part.Circle(App.Vector(0, 0, 0), App.Vector(0, 0, 1), 3),
    Part.Circle(App.Vector(-25.5, 47.5, 0), App.Vector(0, 0, 1), 1.5),
    Part.Circle(App.Vector(-11, 40, 0), App.Vector(0, 0, 1), 6.5),
    Part.Circle(App.Vector(11, 40, 0), App.Vector(0, 0, 1), 6.5),
    Part.Circle(App.Vector(25.5, 47.5, 0), App.Vector(0, 0, 1), 1.5),
], False)
sketch11.addConstraint([
    Sketcher.Constraint("Tangent", 0, 2, 1, 1),
    Sketcher.Constraint("Tangent", 1, 2, 2, 1),
    Sketcher.Constraint("Coincident", 2, 2, 3, 1),
    Sketcher.Constraint("Coincident", 3, 2, 4, 1),
    Sketcher.Constraint("Tangent", 4, 2, 5, 1),
    Sketcher.Constraint("Tangent", 5, 2, 0, 1),
    Sketcher.Constraint("Horizontal", 0),
    Sketcher.Constraint("Vertical", 2),
    Sketcher.Constraint("Horizontal", 3),
    Sketcher.Constraint("Vertical", 4),
    Sketcher.Constraint("Coincident", 8, 3, -1, 1),
    Sketcher.Constraint("Equal", 1, 5),
    Sketcher.Constraint("Equal", 6, 7),
    Sketcher.Constraint("Equal", 5, 8),
    Sketcher.Constraint("Equal", 7, 9),
    Sketcher.Constraint("Equal", 10, 11),
    Sketcher.Constraint("Equal", 9, 12),
    Sketcher.Constraint("Symmetric", 7, 3, 9, 3, -1, 1),
    Sketcher.Constraint("Symmetric", 6, 3, 12, 3, -1, 1),
    Sketcher.Constraint("Symmetric", 6, 3, 7, 3, -2),
    Sketcher.Constraint("Symmetric", 10, 3, 11, 3, -2),
    Sketcher.Constraint("Diameter", 6, Q("3 mm")),
    Sketcher.Constraint("Diameter", 8, Q("6 mm")),
    Sketcher.Constraint("Diameter", 10, Q("13 mm")),
    Sketcher.Constraint("DistanceX", 0, 2, 0, 1, Q("52 mm")),
    Sketcher.Constraint("DistanceY", 2, 2, 2, 1, Q("105 mm")),
    Sketcher.Constraint("DistanceX", 1, 3, -1, 1, Q("26 mm")),
    Sketcher.Constraint("DistanceY", -1, 1, 1, 3, Q("51 mm")),
    Sketcher.Constraint("DistanceX", 10, 3, -1, 1, Q("11 mm")),
    Sketcher.Constraint("DistanceY", -1, 1, 10, 3, Q("40 mm")),
    Sketcher.Constraint("DistanceX", 6, 3, 7, 3, Q("51 mm")),
    Sketcher.Constraint("DistanceY", 6, 3, 9, 3, Q("95 mm")),
])
pad8 = body3.newObject("PartDesign::Pad", "Pad007")
pad8.Profile = sketch11
pad8.Length = 3
body4 = doc.addObject("PartDesign::Body", "Body003")

sketch12 = body4.newObject("Sketcher::SketchObject", "Sketch011")
sketch12.AttachmentSupport = (doc.getObject("XY_Plane003"), [""])
sketch12.MapMode = "FlatFace"
sketch12.AttachmentOffset = App.Placement(App.Vector(0, 0, -3.5), App.Rotation())
add_polygon(sketch12, [(-1.5, 61), (-1.5, 1.5), (-36, 1.5), (-36, -1.5), (-1.5, -1.5), (-1.5, -61), (1.5, -61), (1.5, -1.5), (36, -1.5), (36, 1.5), (1.5, 1.5), (1.5, 61)])
sketch12.addConstraint([
    Sketcher.Constraint("Vertical", 0),
    Sketcher.Constraint("Horizontal", 1),
    Sketcher.Constraint("Vertical", 2),
    Sketcher.Constraint("Horizontal", 3),
    Sketcher.Constraint("Vertical", 4),
    Sketcher.Constraint("Horizontal", 5),
    Sketcher.Constraint("Vertical", 6),
    Sketcher.Constraint("Horizontal", 7),
    Sketcher.Constraint("Vertical", 8),
    Sketcher.Constraint("Horizontal", 9),
    Sketcher.Constraint("Vertical", 10),
    Sketcher.Constraint("Horizontal", 11),
    Sketcher.Constraint("Symmetric", 0, 2, 6, 2, -1, 1),
    Sketcher.Constraint("Symmetric", 2, 2, 8, 2, -1, 1),
    Sketcher.Constraint("Symmetric", 4, 2, 10, 2, -1, 1),
    Sketcher.Constraint("Symmetric", 3, 2, 6, 2, -2),
    Sketcher.Constraint("Equal", 11, 2),
    Sketcher.Constraint("DistanceX", 5, 1, 5, 2, Q("3 mm")),
    Sketcher.Constraint("DistanceX", 1, 2, 1, 1, Q("34.5 mm")),
    Sketcher.Constraint("DistanceY", 0, 2, 0, 1, Q("59.5 mm")),
])
pad9 = body4.newObject("PartDesign::Pad", "Pad008")
pad9.Profile = sketch12
pad9.Length = 3.5

doc.recompute()
